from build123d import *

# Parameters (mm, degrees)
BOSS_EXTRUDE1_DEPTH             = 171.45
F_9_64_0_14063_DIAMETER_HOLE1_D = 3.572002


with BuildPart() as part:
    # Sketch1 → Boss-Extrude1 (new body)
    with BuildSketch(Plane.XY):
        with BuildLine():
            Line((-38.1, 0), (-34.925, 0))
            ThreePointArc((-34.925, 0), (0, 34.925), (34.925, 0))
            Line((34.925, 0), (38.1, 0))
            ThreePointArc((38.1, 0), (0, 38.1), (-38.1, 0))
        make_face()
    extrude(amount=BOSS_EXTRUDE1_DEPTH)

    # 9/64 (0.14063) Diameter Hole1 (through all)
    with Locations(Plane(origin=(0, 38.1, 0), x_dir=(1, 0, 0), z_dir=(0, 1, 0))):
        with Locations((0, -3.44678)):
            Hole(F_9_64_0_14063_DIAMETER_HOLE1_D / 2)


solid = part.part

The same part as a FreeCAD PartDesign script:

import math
import FreeCAD as App
import Part
import Sketcher
Q = App.Units.Quantity

doc = App.newDocument("Part")
body = doc.addObject("PartDesign::Body", "Body")

# Sketch on XY plane
sketch1 = doc.addObject("Sketcher::SketchObject", "Sketch")
body.addObject(sketch1)
sketch1.AttachmentSupport = (doc.XY_Plane, [""])
sketch1.MapMode = "FlatFace"
sketch1.addGeometry([
    Part.LineSegment(App.Vector(-38.1, 0, 0), App.Vector(-34.9, 0, 0)),
    Part.ArcOfCircle(Part.Circle(App.Vector(0, 0, 0), App.Vector(0, 0, 1), 34.9), math.radians(0), math.radians(180)),
    Part.LineSegment(App.Vector(34.9, 0, 0), App.Vector(38.1, 0, 0)),
    Part.ArcOfCircle(Part.Circle(App.Vector(0, 0, 0), App.Vector(0, 0, 1), 38.1), math.radians(0), math.radians(180)),
], False)
sketch1.addConstraint([
    Sketcher.Constraint("Coincident", 0, 2, 1, 2),
    Sketcher.Constraint("Coincident", 1, 1, 2, 1),
    Sketcher.Constraint("Coincident", 2, 2, 3, 1),
    Sketcher.Constraint("Coincident", 3, 2, 0, 1),
    Sketcher.Constraint("Horizontal", 0),
    Sketcher.Constraint("Horizontal", 2),
    Sketcher.Constraint("Coincident", 1, 3, -1, 1),
    Sketcher.Constraint("Coincident", 3, 3, -1, 1),
    Sketcher.Constraint("PointOnObject", 0, 2, -1),
    Sketcher.Constraint("PointOnObject", 1, 1, -1),
    Sketcher.Constraint("Radius", 3, Q("1.5 in")),
    Sketcher.Constraint("Radius", 1, Q("1.375 in")),
])
pad1 = doc.addObject("PartDesign::Pad", "Pad")
body.addObject(pad1)
pad1.Profile = sketch1
pad1.Length = Q("6.75 in")

# Sketch on XZ plane
sketch2 = doc.addObject("Sketcher::SketchObject", "Sketch001")
body.addObject(sketch2)
sketch2.AttachmentSupport = (doc.XZ_Plane, [""])
sketch2.MapMode = "FlatFace"
sketch2.AttachmentOffset = App.Placement(App.Vector(0, 0, -1.5 * 25.4), App.Rotation())
sketch2.addGeometry(Part.Circle(App.Vector(0, 3.4, 0), App.Vector(0, 0, 1), 1.8), False)
sketch2.addConstraint([
    Sketcher.Constraint("PointOnObject", 0, 3, -2),
    Sketcher.Constraint("Diameter", 0, 3.572002),
    Sketcher.Constraint("DistanceY", -1, 1, 0, 3, Q("0.1357 in")),
])
doc.recompute()
hole = doc.addObject("PartDesign::Hole", "Hole")
body.addObject(hole)
hole.Profile = sketch2
hole.ThreadType = "None"
hole.Diameter = 3.572002
hole.DepthType = "ThroughAll"
hole.Reversed = True

doc.recompute()
